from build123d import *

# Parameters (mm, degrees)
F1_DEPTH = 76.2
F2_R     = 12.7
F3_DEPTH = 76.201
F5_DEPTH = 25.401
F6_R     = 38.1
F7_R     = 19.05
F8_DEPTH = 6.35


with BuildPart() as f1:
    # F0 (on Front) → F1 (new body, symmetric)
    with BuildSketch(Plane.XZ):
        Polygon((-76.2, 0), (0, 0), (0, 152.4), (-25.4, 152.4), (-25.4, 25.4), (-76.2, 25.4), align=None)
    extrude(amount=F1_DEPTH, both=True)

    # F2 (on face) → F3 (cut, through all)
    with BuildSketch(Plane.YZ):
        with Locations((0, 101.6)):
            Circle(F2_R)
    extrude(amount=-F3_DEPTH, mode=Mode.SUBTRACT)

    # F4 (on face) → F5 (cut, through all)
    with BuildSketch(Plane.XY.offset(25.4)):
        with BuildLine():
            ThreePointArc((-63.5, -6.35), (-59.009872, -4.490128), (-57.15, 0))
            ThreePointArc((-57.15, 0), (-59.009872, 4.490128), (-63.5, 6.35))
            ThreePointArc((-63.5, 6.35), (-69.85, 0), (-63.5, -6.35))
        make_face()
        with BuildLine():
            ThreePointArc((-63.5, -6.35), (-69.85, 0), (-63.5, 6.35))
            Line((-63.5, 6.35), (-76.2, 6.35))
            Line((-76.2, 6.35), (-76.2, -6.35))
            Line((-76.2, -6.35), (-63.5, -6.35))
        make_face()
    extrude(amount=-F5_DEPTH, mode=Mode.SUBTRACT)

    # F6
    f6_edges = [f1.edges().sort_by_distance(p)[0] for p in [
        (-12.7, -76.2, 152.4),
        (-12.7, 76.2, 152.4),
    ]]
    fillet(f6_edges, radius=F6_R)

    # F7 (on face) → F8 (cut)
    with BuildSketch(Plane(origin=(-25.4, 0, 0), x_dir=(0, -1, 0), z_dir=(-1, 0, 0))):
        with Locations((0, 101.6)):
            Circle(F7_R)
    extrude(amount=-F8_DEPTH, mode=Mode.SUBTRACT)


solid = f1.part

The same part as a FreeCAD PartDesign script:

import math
import FreeCAD as App
import Part
import Sketcher
Q = App.Units.Quantity


def edges_at(feature, points):
    """Names of the edges that pass closest to the given points."""
    edges = feature.Shape.Edges
    near = lambda p: min(range(len(edges)), key=lambda i: edges[i].distToShape(Part.Vertex(*p))[0])
    return sorted({f"Edge{near(p) + 1}" for p in points})

doc = App.newDocument("Part")
body = doc.addObject("PartDesign::Body", "Body")

sketch1 = doc.addObject("Sketcher::SketchObject", "Sketch")
body.addObject(sketch1)
sketch1.AttachmentSupport = (doc.XZ_Plane, [""])
sketch1.MapMode = "FlatFace"
sketch1.addGeometry(Part.LineSegment(App.Vector(-76, 0, 0), App.Vector(0, 0, 0)), False)
sketch1.addGeometry(Part.LineSegment(App.Vector(0, 0, 0), App.Vector(0, 152, 0)), False)
sketch1.addGeometry(Part.LineSegment(App.Vector(0, 152, 0), App.Vector(-25, 152, 0)), False)
sketch1.addGeometry(Part.LineSegment(App.Vector(-25, 152, 0), App.Vector(-25, 25, 0)), False)
sketch1.addGeometry(Part.LineSegment(App.Vector(-25, 25, 0), App.Vector(-76, 25, 0)), False)
sketch1.addGeometry(Part.LineSegment(App.Vector(-76, 25, 0), App.Vector(-76, 0, 0)), False)
sketch1.addConstraint(Sketcher.Constraint("Coincident", 0, 2, 1, 1))
sketch1.addConstraint(Sketcher.Constraint("Coincident", 1, 2, 2, 1))
sketch1.addConstraint(Sketcher.Constraint("Coincident", 2, 2, 3, 1))
sketch1.addConstraint(Sketcher.Constraint("Coincident", 3, 2, 4, 1))
sketch1.addConstraint(Sketcher.Constraint("Coincident", 4, 2, 5, 1))
sketch1.addConstraint(Sketcher.Constraint("Coincident", 5, 2, 0, 1))
sketch1.addConstraint(Sketcher.Constraint("Horizontal", 0))
sketch1.addConstraint(Sketcher.Constraint("Vertical", 1))
sketch1.addConstraint(Sketcher.Constraint("Horizontal", 2))
sketch1.addConstraint(Sketcher.Constraint("Vertical", 3))
sketch1.addConstraint(Sketcher.Constraint("Horizontal", 4))
sketch1.addConstraint(Sketcher.Constraint("Vertical", 5))
sketch1.addConstraint(Sketcher.Constraint("Coincident", 0, 2, -1, 1))
sketch1.addConstraint(Sketcher.Constraint("Equal", 2, 5))
sketch1.addConstraint(Sketcher.Constraint("DistanceX", 0, 1, 0, 2, Q("3 in")))
sketch1.addConstraint(Sketcher.Constraint("DistanceX", 2, 2, 2, 1, Q("1 in")))
sketch1.addConstraint(Sketcher.Constraint("DistanceY", 1, 1, 1, 2, Q("6 in")))
pad1 = doc.addObject("PartDesign::Pad", "Pad")
body.addObject(pad1)
pad1.Profile = sketch1
pad1.Length = Q("6 in")
pad1.Midplane = True

sketch2 = doc.addObject("Sketcher::SketchObject", "Sketch001")
body.addObject(sketch2)
sketch2.AttachmentSupport = (doc.YZ_Plane, [""])
sketch2.MapMode = "FlatFace"
sketch2.addGeometry(Part.Circle(App.Vector(0, 102, 0), App.Vector(0, 0, 1), 13), False)
sketch2.addConstraint(Sketcher.Constraint("PointOnObject", 0, 3, -2))
sketch2.addConstraint(Sketcher.Constraint("Diameter", 0, Q("1 in")))
sketch2.addConstraint(Sketcher.Constraint("DistanceY", -1, 1, 0, 3, Q("4 in")))
pocket1 = doc.addObject("PartDesign::Pocket", "Pocket")
body.addObject(pocket1)
pocket1.Profile = sketch2
pocket1.Type = "ThroughAll"

sketch3 = doc.addObject("Sketcher::SketchObject", "Sketch002")
body.addObject(sketch3)
sketch3.AttachmentSupport = (doc.XY_Plane, [""])
sketch3.MapMode = "FlatFace"
sketch3.AttachmentOffset = App.Placement(App.Vector(0, 0, 1 * 25.4), App.Rotation())
sketch3.addGeometry(Part.ArcOfCircle(Part.Circle(App.Vector(-64, 0, 0), App.Vector(0, 0, 1), 6), math.radians(-90), math.radians(0)), False)
sketch3.addGeometry(Part.ArcOfCircle(Part.Circle(App.Vector(-64, 0, 0), App.Vector(0, 0, 1), 6), math.radians(0), math.radians(90)), False)
sketch3.addGeometry(Part.LineSegment(App.Vector(-64, 6, 0), App.Vector(-76, 6, 0)), False)
sketch3.addGeometry(Part.LineSegment(App.Vector(-76, 6, 0), App.Vector(-76, -6, 0)), False)
sketch3.addGeometry(Part.LineSegment(App.Vector(-76, -6, 0), App.Vector(-64, -6, 0)), False)
sketch3.addConstraint(Sketcher.Constraint("Tangent", 0, 2, 1, 1))
sketch3.addConstraint(Sketcher.Constraint("Tangent", 1, 2, 2, 1))
sketch3.addConstraint(Sketcher.Constraint("Coincident", 2, 2, 3, 1))
sketch3.addConstraint(Sketcher.Constraint("Coincident", 3, 2, 4, 1))
sketch3.addConstraint(Sketcher.Constraint("Tangent", 4, 2, 0, 1))
sketch3.addConstraint(Sketcher.Constraint("Horizontal", 2))
sketch3.addConstraint(Sketcher.Constraint("Vertical", 3))
sketch3.addConstraint(Sketcher.Constraint("Horizontal", 4))
sketch3.addConstraint(Sketcher.Constraint("Equal", 0, 1))
sketch3.addConstraint(Sketcher.Constraint("PointOnObject", 0, 3, -1))
sketch3.addConstraint(Sketcher.Constraint("PointOnObject", 0, 2, -1))
sketch3.addConstraint(Sketcher.Constraint("Equal", 4, 3))
sketch3.addConstraint(Sketcher.Constraint("Radius", 0, Q("0.25 in")))
sketch3.addConstraint(Sketcher.Constraint("DistanceX", 2, 2, -1, 1, Q("3 in")))
pocket2 = doc.addObject("PartDesign::Pocket", "Pocket001")
body.addObject(pocket2)
pocket2.Profile = sketch3
pocket2.Type = "ThroughAll"
doc.recompute()

fillet = doc.addObject("PartDesign::Fillet", "Fillet")
body.addObject(fillet)
fillet.Base = (pocket2, edges_at(pocket2, [(-12.7, -76.2, 152.4), (-12.7, 76.2, 152.4)]))
fillet.Radius = Q("1.5 in")

sketch4 = doc.addObject("Sketcher::SketchObject", "Sketch003")
body.addObject(sketch4)
sketch4.AttachmentSupport = (doc.YZ_Plane, [""])
sketch4.MapMode = "FlatFace"
sketch4.AttachmentOffset = App.Placement(App.Vector(0, 0, -1 * 25.4), App.Rotation())
sketch4.addGeometry(Part.Circle(App.Vector(0, 102, 0), App.Vector(0, 0, 1), 19), False)
sketch4.addConstraint(Sketcher.Constraint("PointOnObject", 0, 3, -2))
sketch4.addConstraint(Sketcher.Constraint("Diameter", 0, Q("1.5 in")))
sketch4.addConstraint(Sketcher.Constraint("DistanceY", -1, 1, 0, 3, Q("4 in")))
pocket3 = doc.addObject("PartDesign::Pocket", "Pocket002")
body.addObject(pocket3)
pocket3.Profile = sketch4
pocket3.Length = Q("0.25 in")
pocket3.Reversed = True

doc.recompute()
